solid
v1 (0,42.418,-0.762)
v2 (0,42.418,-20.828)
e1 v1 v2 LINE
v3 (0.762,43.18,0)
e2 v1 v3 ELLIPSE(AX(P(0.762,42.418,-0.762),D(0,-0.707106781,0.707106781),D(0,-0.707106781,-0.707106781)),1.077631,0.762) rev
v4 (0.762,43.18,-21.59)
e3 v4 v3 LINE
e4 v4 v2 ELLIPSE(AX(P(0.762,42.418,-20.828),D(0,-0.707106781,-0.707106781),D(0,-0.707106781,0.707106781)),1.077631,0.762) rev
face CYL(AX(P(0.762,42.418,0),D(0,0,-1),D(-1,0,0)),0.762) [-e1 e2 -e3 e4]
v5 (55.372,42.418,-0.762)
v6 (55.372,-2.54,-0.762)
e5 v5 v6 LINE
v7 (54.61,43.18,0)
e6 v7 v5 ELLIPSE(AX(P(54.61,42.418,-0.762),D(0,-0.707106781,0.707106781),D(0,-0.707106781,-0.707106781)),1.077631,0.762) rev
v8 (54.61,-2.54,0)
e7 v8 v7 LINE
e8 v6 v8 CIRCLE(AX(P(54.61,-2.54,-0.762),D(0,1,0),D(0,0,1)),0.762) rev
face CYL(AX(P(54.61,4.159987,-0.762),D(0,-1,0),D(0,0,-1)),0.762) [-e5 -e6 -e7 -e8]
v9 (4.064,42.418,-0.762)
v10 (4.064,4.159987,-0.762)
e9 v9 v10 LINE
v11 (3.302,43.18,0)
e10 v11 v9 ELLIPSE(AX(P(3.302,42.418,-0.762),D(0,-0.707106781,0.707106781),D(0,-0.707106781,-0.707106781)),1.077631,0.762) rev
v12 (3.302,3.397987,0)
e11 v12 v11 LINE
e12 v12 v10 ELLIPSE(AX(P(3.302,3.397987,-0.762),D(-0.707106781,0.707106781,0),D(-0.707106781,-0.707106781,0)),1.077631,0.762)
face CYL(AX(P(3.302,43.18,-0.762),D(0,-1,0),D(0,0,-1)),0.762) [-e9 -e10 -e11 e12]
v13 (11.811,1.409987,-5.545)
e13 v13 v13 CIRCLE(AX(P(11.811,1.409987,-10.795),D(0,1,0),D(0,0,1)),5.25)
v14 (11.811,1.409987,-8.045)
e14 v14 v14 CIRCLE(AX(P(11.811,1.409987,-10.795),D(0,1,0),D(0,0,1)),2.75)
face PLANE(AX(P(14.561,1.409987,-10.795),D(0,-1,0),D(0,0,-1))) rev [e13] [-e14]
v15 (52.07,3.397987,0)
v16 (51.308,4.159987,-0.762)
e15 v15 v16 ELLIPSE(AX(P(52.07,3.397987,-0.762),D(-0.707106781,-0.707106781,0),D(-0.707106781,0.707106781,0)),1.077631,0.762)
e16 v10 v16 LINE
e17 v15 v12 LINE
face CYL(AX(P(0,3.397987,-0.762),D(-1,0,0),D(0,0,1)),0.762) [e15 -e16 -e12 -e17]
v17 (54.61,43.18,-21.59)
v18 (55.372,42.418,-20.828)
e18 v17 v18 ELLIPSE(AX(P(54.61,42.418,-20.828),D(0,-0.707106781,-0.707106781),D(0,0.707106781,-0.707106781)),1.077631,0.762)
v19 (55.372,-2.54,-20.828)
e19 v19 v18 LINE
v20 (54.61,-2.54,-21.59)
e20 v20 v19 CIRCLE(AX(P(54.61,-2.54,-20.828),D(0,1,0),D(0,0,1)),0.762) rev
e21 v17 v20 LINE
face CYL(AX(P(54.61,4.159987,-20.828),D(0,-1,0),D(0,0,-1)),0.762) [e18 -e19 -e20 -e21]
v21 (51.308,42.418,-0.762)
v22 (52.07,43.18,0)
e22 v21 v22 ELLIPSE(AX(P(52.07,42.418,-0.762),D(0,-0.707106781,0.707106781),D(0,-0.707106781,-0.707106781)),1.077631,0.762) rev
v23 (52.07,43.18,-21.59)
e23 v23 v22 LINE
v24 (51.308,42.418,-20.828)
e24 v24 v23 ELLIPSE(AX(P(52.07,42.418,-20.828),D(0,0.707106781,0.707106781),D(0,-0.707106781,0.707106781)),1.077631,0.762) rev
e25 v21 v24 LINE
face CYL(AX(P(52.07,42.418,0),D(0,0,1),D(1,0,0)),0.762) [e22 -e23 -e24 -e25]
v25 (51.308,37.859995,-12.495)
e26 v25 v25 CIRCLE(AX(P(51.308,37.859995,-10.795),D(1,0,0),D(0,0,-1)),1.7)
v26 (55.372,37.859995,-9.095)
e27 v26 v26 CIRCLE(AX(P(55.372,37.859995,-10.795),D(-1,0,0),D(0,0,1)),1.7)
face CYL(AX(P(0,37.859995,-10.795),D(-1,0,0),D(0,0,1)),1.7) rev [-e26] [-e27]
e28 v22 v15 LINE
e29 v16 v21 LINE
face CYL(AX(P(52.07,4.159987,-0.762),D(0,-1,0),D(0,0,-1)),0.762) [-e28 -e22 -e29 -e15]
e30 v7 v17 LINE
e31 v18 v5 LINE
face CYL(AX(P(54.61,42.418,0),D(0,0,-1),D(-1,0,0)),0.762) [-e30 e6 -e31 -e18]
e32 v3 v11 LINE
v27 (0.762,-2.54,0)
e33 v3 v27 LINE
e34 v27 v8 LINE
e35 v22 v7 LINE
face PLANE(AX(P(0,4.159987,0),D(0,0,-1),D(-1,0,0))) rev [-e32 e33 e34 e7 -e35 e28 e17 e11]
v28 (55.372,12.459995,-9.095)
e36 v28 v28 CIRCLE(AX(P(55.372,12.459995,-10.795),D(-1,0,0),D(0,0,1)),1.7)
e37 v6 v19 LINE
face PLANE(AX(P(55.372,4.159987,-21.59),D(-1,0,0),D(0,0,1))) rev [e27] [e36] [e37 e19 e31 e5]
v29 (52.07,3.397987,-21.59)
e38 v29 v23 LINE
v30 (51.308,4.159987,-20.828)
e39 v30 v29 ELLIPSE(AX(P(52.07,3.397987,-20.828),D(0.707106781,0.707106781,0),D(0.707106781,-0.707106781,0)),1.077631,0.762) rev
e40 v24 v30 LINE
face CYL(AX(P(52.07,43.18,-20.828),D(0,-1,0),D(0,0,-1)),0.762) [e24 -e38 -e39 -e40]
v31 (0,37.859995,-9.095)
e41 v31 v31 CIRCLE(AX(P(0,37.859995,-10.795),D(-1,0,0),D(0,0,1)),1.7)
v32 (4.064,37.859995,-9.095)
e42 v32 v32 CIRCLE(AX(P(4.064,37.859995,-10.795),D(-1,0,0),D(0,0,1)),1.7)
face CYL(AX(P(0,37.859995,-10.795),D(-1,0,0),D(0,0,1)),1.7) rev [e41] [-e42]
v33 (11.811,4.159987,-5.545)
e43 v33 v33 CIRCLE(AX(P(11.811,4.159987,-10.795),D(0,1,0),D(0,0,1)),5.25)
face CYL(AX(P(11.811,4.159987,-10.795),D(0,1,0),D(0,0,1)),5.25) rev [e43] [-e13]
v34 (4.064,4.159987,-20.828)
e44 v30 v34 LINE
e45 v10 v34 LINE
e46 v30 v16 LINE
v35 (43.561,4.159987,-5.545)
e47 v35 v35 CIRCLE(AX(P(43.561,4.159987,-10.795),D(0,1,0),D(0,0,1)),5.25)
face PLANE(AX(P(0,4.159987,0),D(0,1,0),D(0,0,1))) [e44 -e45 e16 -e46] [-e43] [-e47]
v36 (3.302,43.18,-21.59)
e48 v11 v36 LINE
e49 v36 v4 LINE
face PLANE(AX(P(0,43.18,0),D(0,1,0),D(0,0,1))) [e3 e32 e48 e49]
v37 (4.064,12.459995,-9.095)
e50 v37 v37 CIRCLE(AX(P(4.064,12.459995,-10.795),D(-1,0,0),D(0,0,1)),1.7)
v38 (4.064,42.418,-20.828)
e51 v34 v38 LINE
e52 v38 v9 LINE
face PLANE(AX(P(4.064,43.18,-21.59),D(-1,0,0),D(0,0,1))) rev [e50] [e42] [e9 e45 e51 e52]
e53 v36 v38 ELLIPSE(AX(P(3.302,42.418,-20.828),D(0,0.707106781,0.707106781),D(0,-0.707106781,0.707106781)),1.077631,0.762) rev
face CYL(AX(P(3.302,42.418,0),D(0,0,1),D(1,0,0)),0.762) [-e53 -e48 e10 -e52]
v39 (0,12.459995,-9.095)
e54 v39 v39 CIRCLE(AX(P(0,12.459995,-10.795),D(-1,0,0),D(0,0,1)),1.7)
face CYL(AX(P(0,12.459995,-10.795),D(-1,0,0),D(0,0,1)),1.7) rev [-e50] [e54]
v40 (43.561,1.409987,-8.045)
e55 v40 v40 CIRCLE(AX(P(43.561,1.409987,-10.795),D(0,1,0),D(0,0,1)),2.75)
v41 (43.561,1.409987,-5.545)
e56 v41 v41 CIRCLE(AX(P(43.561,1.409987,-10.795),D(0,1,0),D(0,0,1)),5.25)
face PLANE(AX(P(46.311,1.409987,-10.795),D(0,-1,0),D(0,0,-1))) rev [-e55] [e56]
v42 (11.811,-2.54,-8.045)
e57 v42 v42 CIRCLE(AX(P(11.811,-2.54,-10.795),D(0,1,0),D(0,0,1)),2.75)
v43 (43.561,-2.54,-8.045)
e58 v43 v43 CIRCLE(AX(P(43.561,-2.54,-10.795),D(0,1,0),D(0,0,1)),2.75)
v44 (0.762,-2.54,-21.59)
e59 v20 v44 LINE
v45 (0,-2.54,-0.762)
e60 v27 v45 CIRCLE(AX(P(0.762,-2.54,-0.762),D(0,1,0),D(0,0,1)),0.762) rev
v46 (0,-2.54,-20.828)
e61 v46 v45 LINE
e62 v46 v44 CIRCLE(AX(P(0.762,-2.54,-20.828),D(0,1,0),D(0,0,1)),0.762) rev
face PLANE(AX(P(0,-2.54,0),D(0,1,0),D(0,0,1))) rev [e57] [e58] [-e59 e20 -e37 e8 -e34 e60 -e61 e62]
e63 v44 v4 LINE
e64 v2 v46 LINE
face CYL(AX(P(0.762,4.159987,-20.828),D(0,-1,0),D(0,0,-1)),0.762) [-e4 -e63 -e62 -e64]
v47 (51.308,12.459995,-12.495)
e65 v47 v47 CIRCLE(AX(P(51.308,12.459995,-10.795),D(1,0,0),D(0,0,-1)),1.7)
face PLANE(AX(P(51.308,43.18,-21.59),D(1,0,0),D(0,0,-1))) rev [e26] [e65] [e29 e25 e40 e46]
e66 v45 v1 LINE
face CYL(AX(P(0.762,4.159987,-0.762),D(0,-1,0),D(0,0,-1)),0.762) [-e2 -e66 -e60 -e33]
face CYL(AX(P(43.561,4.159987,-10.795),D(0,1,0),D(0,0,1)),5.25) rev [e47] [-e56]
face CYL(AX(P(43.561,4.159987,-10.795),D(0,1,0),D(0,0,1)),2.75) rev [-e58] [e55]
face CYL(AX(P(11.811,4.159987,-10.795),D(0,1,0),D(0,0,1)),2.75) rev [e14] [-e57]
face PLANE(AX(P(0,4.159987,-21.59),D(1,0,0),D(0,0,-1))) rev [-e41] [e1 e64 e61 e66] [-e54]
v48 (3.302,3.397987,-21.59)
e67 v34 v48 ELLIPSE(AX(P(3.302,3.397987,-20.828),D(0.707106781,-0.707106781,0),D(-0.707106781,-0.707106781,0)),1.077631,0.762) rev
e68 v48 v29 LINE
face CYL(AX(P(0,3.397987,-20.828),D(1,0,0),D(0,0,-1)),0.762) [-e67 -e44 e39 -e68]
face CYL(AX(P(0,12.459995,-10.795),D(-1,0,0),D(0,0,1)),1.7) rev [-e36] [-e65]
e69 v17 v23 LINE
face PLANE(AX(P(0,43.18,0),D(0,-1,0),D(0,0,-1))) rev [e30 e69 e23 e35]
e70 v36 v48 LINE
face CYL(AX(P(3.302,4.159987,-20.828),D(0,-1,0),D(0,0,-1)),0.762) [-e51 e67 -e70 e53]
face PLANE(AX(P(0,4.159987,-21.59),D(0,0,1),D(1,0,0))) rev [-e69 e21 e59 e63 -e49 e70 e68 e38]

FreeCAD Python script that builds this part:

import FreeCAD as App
import Part
import Sketcher
Q = App.Units.Quantity


def edges_at(feature, points):
    """Names of the edges that pass closest to the given points."""
    edges = feature.Shape.Edges
    near = lambda p: min(range(len(edges)), key=lambda i: edges[i].distToShape(Part.Vertex(*p))[0])
    return sorted({f"Edge{near(p) + 1}" for p in points})

doc = App.newDocument("Part")
body = doc.addObject("PartDesign::Body", "Body")

sketch1 = body.newObject("Sketcher::SketchObject", "Sketch")
sketch1.AttachmentSupport = (doc.getObject("XZ_Plane"), [""])
sketch1.MapMode = "FlatFace"
sketch1.addGeometry([
    Part.LineSegment(App.Vector(0, -21.59, 0), App.Vector(0, 0, 0)),
    Part.LineSegment(App.Vector(0, 0, 0), App.Vector(55.372, 0, 0)),
    Part.LineSegment(App.Vector(55.372, 0, 0), App.Vector(55.372, -21.59, 0)),
    Part.LineSegment(App.Vector(55.372, -21.59, 0), App.Vector(0, -21.59, 0)),
], False)
sketch1.addConstraint([
    Sketcher.Constraint("Coincident", 0, 2, 1, 1),
    Sketcher.Constraint("Coincident", 1, 2, 2, 1),
    Sketcher.Constraint("Coincident", 2, 2, 3, 1),
    Sketcher.Constraint("Coincident", 3, 2, 0, 1),
    Sketcher.Constraint("Vertical", 0),
    Sketcher.Constraint("Horizontal", 1),
    Sketcher.Constraint("Vertical", 2),
    Sketcher.Constraint("Horizontal", 3),
    Sketcher.Constraint("Coincident", 0, 2, -1, 1),
    Sketcher.Constraint("DistanceX", 1, 1, 1, 2, Q("2.18 in")),
    Sketcher.Constraint("DistanceY", 0, 1, 0, 2, Q("0.85 in")),
])
pad1 = body.newObject("PartDesign::Pad", "Pad")
pad1.Profile = sketch1
pad1.Length = 4.159987
pad1.Reversed = True

sketch2 = body.newObject("Sketcher::SketchObject", "Sketch001")
sketch2.AttachmentSupport = (doc.getObject("XZ_Plane"), [""])
sketch2.MapMode = "FlatFace"
sketch2.AttachmentOffset = App.Placement(App.Vector(0, 0, -4.159987), App.Rotation())
sketch2.addGeometry([
    Part.LineSegment(App.Vector(0, -21.59, 0), App.Vector(0, 0, 0)),
    Part.LineSegment(App.Vector(0, 0, 0), App.Vector(4.064, 0, 0)),
    Part.LineSegment(App.Vector(4.064, 0, 0), App.Vector(4.064, -21.59, 0)),
    Part.LineSegment(App.Vector(4.064, -21.59, 0), App.Vector(0, -21.59, 0)),
    Part.LineSegment(App.Vector(51.308, -21.59, 0), App.Vector(51.308, 0, 0)),
    Part.LineSegment(App.Vector(51.308, 0, 0), App.Vector(55.372, 0, 0)),
    Part.LineSegment(App.Vector(55.372, 0, 0), App.Vector(55.372, -21.59, 0)),
    Part.LineSegment(App.Vector(55.372, -21.59, 0), App.Vector(51.308, -21.59, 0)),
], False)
sketch2.addConstraint([
    Sketcher.Constraint("Coincident", 0, 2, 1, 1),
    Sketcher.Constraint("Coincident", 1, 2, 2, 1),
    Sketcher.Constraint("Coincident", 2, 2, 3, 1),
    Sketcher.Constraint("Coincident", 3, 2, 0, 1),
    Sketcher.Constraint("Coincident", 4, 2, 5, 1),
    Sketcher.Constraint("Coincident", 5, 2, 6, 1),
    Sketcher.Constraint("Coincident", 6, 2, 7, 1),
    Sketcher.Constraint("Coincident", 7, 2, 4, 1),
    Sketcher.Constraint("Vertical", 0),
    Sketcher.Constraint("Horizontal", 1),
    Sketcher.Constraint("Vertical", 2),
    Sketcher.Constraint("Horizontal", 3),
    Sketcher.Constraint("Vertical", 4),
    Sketcher.Constraint("Horizontal", 5),
    Sketcher.Constraint("Vertical", 6),
    Sketcher.Constraint("Horizontal", 7),
    Sketcher.Constraint("Coincident", 0, 2, -1, 1),
    Sketcher.Constraint("PointOnObject", 4, 2, -1),
    Sketcher.Constraint("Horizontal", 3, 2, 6, 2),
    Sketcher.Constraint("Equal", 3, 5),
    Sketcher.Constraint("DistanceX", 1, 1, 1, 2, Q("0.16 in")),
    Sketcher.Constraint("DistanceY", 0, 1, 0, 2, Q("0.85 in")),
    Sketcher.Constraint("DistanceX", -1, 1, 4, 2, Q("2.02 in")),
])
pad2 = body.newObject("PartDesign::Pad", "Pad001")
pad2.Profile = sketch2
pad2.Length = 39.020013
pad2.Reversed = True

sketch3 = body.newObject("Sketcher::SketchObject", "Sketch002")
sketch3.AttachmentSupport = (doc.getObject("YZ_Plane"), [""])
sketch3.MapMode = "FlatFace"
sketch3.addGeometry([
    Part.Circle(App.Vector(37.859995, -10.795, 0), App.Vector(0, 0, 1), 1.7),
    Part.Circle(App.Vector(12.459995, -10.795, 0), App.Vector(0, 0, 1), 1.7),
], False)
sketch3.addConstraint([
    Sketcher.Constraint("Equal", 0, 1),
    Sketcher.Constraint("Horizontal", 0, 3, 1, 3),
    Sketcher.Constraint("DistanceX", 1, 3, 0, 3, Q("1 in")),
    Sketcher.Constraint("Diameter", 0, Q("3.4 mm")),
    Sketcher.Constraint("DistanceY", 0, 3, -1, 1, Q("0.425 in")),
    Sketcher.Constraint("DistanceX", -1, 1, 0, 3, Q("37.859995 mm")),
])
doc.recompute()
hole = body.newObject("PartDesign::Hole", "Hole")
hole.Profile = sketch3
hole.ThreadType = "None"
hole.Diameter = 3.4
hole.DepthType = "ThroughAll"
hole.Reversed = True

sketch4 = body.newObject("Sketcher::SketchObject", "Sketch003")
sketch4.AttachmentSupport = (doc.getObject("XZ_Plane"), [""])
sketch4.MapMode = "FlatFace"
sketch4.addGeometry([
    Part.LineSegment(App.Vector(0, -21.59, 0), App.Vector(0, 0, 0)),
    Part.LineSegment(App.Vector(0, 0, 0), App.Vector(55.372, 0, 0)),
    Part.LineSegment(App.Vector(55.372, 0, 0), App.Vector(55.372, -21.59, 0)),
    Part.LineSegment(App.Vector(55.372, -21.59, 0), App.Vector(0, -21.59, 0)),
], False)
sketch4.addConstraint([
    Sketcher.Constraint("Coincident", 0, 2, 1, 1),
    Sketcher.Constraint("Coincident", 1, 2, 2, 1),
    Sketcher.Constraint("Coincident", 2, 2, 3, 1),
    Sketcher.Constraint("Coincident", 3, 2, 0, 1),
    Sketcher.Constraint("Vertical", 0),
    Sketcher.Constraint("Horizontal", 1),
    Sketcher.Constraint("Vertical", 2),
    Sketcher.Constraint("Horizontal", 3),
    Sketcher.Constraint("Coincident", 0, 2, -1, 1),
    Sketcher.Constraint("DistanceX", 1, 1, 1, 2, Q("2.18 in")),
    Sketcher.Constraint("DistanceY", 0, 1, 0, 2, Q("0.85 in")),
])
pad3 = body.newObject("PartDesign::Pad", "Pad002")
pad3.Profile = sketch4
pad3.Length = Q("0.1 in")

sketch5 = body.newObject("Sketcher::SketchObject", "Sketch004")
sketch5.AttachmentSupport = (doc.getObject("XZ_Plane"), [""])
sketch5.MapMode = "FlatFace"
sketch5.AttachmentOffset = App.Placement(App.Vector(0, 0, -4.159987), App.Rotation())
sketch5.addGeometry([
    Part.Circle(App.Vector(11.811, -10.795, 0), App.Vector(0, 0, 1), 2.75),
    Part.Circle(App.Vector(43.561, -10.795, 0), App.Vector(0, 0, 1), 2.75),
], False)
sketch5.addConstraint([
    Sketcher.Constraint("Equal", 0, 1),
    Sketcher.Constraint("Horizontal", 0, 3, 1, 3),
    Sketcher.Constraint("Diameter", 0, Q("5.5 mm")),
    Sketcher.Constraint("DistanceX", 0, 3, 1, 3, Q("1.25 in")),
    Sketcher.Constraint("DistanceX", -1, 1, 0, 3, Q("0.465 in")),
    Sketcher.Constraint("DistanceY", 0, 3, -1, 1, Q("0.425 in")),
])
doc.recompute()
hole2 = body.newObject("PartDesign::Hole", "Hole001")
hole2.Profile = sketch5
hole2.ThreadType = "None"
hole2.Diameter = 5.5
hole2.DepthType = "ThroughAll"
hole2.HoleCutType = "Counterbore"
hole2.HoleCutDiameter = 10.5
hole2.HoleCutDepth = 2.75
hole2.Reversed = True
doc.recompute()

fillet = body.newObject("PartDesign::Fillet", "Fillet")
fillet.Base = (hole2, edges_at(hole2, [
    (27.686, 4.16, 0),
    (4.064, 23.67, 0),
    (4.064, 23.67, -21.59),
    (0, 43.18, -10.795),
    (4.064, 43.18, -10.795),
    (27.686, 4.16, -21.59),
    (51.308, 23.67, -21.59),
    (51.308, 23.67, 0),
    (55.372, 43.18, -10.795),
    (51.308, 43.18, -10.795),
    (0, 20.32, -21.59),
    (55.372, 20.32, -21.59),
    (55.372, 20.32, 0),
    (0, 20.32, 0),
]))
fillet.Radius = Q("0.03 in")

doc.recompute()
